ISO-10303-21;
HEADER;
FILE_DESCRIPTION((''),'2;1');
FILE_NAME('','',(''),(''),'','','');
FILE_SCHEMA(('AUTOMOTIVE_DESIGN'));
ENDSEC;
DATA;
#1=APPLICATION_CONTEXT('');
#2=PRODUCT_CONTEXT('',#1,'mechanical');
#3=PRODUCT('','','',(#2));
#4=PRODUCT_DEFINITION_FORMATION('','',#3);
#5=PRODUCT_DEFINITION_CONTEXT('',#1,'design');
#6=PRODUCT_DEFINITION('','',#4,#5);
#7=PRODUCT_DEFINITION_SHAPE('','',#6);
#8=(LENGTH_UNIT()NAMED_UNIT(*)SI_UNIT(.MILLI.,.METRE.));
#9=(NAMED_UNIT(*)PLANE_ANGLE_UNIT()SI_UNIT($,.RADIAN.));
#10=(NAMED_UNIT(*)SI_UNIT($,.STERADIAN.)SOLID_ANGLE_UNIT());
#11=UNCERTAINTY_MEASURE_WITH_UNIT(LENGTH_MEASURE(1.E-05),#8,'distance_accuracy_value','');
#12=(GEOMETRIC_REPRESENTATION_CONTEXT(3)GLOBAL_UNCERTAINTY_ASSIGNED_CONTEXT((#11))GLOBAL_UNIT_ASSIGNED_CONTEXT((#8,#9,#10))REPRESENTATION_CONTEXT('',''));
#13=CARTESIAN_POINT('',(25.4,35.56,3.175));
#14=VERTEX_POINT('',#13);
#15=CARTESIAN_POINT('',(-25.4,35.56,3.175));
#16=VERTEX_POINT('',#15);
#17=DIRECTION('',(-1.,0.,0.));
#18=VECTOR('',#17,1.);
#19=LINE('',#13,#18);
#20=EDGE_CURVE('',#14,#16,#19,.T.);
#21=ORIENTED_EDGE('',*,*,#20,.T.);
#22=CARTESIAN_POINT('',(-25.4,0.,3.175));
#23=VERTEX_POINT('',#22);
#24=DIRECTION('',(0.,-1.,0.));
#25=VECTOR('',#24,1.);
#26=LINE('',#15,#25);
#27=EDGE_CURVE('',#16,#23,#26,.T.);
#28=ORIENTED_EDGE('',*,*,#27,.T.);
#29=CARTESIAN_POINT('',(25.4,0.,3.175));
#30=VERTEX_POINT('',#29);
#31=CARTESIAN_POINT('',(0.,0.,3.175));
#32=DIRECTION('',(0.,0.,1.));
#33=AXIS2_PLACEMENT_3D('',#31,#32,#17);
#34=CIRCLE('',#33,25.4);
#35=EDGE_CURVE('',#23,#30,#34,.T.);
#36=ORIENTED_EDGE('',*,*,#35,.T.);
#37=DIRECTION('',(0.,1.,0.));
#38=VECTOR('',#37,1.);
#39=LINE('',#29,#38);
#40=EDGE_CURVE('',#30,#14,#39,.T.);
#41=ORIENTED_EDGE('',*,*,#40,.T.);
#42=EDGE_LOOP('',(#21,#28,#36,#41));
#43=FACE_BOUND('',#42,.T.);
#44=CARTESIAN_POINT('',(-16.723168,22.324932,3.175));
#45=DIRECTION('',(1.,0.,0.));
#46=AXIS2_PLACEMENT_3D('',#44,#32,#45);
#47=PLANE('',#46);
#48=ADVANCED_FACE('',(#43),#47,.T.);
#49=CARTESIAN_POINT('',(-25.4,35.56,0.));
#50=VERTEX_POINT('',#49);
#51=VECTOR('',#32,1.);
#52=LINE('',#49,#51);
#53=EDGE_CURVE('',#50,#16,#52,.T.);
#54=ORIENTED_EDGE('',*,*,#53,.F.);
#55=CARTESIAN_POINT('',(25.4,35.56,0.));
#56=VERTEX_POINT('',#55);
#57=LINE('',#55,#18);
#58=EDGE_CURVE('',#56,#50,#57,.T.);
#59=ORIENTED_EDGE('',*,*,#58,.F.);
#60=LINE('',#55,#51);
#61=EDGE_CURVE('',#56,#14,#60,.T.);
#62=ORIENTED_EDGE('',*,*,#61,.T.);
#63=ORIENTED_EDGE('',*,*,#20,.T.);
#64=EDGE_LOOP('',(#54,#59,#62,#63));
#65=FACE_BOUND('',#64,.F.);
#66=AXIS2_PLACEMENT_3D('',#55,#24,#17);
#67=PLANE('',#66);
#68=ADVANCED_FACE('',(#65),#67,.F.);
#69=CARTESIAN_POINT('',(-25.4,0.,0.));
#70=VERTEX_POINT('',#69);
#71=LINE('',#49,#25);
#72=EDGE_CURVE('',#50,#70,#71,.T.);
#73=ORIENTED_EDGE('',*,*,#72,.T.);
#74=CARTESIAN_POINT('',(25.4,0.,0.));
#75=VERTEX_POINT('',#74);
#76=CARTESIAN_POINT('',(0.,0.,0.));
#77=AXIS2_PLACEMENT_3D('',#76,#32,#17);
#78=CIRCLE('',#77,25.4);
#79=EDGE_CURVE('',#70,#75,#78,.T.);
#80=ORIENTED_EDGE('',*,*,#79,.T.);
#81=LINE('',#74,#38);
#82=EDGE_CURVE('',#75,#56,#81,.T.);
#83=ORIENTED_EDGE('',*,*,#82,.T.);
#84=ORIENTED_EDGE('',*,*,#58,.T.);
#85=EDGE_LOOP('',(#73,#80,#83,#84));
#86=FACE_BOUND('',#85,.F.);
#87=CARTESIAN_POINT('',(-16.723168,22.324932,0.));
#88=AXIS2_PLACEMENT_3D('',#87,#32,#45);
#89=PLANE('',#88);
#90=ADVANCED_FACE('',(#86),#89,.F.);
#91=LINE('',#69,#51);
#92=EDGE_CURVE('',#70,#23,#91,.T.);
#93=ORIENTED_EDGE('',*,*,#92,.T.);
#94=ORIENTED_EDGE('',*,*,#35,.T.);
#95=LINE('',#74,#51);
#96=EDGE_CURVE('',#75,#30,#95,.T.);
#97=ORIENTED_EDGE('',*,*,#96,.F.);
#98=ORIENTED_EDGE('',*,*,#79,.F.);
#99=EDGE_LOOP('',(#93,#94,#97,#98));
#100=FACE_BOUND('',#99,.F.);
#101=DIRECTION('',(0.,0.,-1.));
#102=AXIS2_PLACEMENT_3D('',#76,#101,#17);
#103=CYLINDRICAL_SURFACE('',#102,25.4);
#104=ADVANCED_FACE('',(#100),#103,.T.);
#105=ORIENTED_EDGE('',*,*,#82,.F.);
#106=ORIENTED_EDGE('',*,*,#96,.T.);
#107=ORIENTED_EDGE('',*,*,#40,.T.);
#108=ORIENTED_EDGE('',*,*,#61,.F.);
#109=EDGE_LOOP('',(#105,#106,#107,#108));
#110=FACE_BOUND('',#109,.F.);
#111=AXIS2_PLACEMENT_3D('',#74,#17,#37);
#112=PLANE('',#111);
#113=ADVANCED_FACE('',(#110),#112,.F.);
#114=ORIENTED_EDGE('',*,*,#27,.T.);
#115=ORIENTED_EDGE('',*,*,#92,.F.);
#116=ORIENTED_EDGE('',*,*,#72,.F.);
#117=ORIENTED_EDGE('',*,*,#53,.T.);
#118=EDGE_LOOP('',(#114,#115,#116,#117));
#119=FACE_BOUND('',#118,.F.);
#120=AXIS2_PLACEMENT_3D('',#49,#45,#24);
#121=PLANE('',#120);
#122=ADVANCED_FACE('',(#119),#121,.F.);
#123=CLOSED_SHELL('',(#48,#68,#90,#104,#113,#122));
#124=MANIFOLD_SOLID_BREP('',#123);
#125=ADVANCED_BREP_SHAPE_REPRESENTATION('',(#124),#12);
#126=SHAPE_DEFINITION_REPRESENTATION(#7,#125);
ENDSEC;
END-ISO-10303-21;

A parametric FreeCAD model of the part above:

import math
import FreeCAD as App
import Part
import Sketcher

V = App.Vector
Q = App.Units.Quantity

doc = App.newDocument("Part")
body = doc.addObject("PartDesign::Body", "Body")

# Sketch on XY plane
sketch1 = body.newObject("Sketcher::SketchObject", "Sketch")
sketch1.AttachmentSupport = (doc.getObject("XY_Plane"), [""])
sketch1.MapMode = "FlatFace"
sketch1.addGeometry(Part.LineSegment(V(25, 0, 0), V(25, 36, 0)), False)
sketch1.addGeometry(Part.LineSegment(V(25, 36, 0), V(-25, 36, 0)), False)
sketch1.addGeometry(Part.LineSegment(V(-25, 36, 0), V(-25, 0, 0)), False)
sketch1.addGeometry(Part.ArcOfCircle(Part.Circle(V(0, 0, 0), V(0, 0, 1), 25), math.radians(180), math.radians(360)), False)
sketch1.addConstraint(Sketcher.Constraint("Coincident", 0, 2, 1, 1))
sketch1.addConstraint(Sketcher.Constraint("Coincident", 1, 2, 2, 1))
sketch1.addConstraint(Sketcher.Constraint("Tangent", 2, 2, 3, 1))
sketch1.addConstraint(Sketcher.Constraint("Tangent", 3, 2, 0, 1))
sketch1.addConstraint(Sketcher.Constraint("Vertical", 0))
sketch1.addConstraint(Sketcher.Constraint("Horizontal", 1))
sketch1.addConstraint(Sketcher.Constraint("Vertical", 2))
sketch1.addConstraint(Sketcher.Constraint("Coincident", 3, 3, -1, 1))
sketch1.addConstraint(Sketcher.Constraint("Radius", 3, Q("1 in")))
sketch1.addConstraint(Sketcher.Constraint("DistanceY", 0, 1, 0, 2, Q("1.4 in")))
pad1 = body.newObject("PartDesign::Pad", "Pad")
pad1.Profile = sketch1
pad1.Length = Q("0.125 in")

doc.recompute()
